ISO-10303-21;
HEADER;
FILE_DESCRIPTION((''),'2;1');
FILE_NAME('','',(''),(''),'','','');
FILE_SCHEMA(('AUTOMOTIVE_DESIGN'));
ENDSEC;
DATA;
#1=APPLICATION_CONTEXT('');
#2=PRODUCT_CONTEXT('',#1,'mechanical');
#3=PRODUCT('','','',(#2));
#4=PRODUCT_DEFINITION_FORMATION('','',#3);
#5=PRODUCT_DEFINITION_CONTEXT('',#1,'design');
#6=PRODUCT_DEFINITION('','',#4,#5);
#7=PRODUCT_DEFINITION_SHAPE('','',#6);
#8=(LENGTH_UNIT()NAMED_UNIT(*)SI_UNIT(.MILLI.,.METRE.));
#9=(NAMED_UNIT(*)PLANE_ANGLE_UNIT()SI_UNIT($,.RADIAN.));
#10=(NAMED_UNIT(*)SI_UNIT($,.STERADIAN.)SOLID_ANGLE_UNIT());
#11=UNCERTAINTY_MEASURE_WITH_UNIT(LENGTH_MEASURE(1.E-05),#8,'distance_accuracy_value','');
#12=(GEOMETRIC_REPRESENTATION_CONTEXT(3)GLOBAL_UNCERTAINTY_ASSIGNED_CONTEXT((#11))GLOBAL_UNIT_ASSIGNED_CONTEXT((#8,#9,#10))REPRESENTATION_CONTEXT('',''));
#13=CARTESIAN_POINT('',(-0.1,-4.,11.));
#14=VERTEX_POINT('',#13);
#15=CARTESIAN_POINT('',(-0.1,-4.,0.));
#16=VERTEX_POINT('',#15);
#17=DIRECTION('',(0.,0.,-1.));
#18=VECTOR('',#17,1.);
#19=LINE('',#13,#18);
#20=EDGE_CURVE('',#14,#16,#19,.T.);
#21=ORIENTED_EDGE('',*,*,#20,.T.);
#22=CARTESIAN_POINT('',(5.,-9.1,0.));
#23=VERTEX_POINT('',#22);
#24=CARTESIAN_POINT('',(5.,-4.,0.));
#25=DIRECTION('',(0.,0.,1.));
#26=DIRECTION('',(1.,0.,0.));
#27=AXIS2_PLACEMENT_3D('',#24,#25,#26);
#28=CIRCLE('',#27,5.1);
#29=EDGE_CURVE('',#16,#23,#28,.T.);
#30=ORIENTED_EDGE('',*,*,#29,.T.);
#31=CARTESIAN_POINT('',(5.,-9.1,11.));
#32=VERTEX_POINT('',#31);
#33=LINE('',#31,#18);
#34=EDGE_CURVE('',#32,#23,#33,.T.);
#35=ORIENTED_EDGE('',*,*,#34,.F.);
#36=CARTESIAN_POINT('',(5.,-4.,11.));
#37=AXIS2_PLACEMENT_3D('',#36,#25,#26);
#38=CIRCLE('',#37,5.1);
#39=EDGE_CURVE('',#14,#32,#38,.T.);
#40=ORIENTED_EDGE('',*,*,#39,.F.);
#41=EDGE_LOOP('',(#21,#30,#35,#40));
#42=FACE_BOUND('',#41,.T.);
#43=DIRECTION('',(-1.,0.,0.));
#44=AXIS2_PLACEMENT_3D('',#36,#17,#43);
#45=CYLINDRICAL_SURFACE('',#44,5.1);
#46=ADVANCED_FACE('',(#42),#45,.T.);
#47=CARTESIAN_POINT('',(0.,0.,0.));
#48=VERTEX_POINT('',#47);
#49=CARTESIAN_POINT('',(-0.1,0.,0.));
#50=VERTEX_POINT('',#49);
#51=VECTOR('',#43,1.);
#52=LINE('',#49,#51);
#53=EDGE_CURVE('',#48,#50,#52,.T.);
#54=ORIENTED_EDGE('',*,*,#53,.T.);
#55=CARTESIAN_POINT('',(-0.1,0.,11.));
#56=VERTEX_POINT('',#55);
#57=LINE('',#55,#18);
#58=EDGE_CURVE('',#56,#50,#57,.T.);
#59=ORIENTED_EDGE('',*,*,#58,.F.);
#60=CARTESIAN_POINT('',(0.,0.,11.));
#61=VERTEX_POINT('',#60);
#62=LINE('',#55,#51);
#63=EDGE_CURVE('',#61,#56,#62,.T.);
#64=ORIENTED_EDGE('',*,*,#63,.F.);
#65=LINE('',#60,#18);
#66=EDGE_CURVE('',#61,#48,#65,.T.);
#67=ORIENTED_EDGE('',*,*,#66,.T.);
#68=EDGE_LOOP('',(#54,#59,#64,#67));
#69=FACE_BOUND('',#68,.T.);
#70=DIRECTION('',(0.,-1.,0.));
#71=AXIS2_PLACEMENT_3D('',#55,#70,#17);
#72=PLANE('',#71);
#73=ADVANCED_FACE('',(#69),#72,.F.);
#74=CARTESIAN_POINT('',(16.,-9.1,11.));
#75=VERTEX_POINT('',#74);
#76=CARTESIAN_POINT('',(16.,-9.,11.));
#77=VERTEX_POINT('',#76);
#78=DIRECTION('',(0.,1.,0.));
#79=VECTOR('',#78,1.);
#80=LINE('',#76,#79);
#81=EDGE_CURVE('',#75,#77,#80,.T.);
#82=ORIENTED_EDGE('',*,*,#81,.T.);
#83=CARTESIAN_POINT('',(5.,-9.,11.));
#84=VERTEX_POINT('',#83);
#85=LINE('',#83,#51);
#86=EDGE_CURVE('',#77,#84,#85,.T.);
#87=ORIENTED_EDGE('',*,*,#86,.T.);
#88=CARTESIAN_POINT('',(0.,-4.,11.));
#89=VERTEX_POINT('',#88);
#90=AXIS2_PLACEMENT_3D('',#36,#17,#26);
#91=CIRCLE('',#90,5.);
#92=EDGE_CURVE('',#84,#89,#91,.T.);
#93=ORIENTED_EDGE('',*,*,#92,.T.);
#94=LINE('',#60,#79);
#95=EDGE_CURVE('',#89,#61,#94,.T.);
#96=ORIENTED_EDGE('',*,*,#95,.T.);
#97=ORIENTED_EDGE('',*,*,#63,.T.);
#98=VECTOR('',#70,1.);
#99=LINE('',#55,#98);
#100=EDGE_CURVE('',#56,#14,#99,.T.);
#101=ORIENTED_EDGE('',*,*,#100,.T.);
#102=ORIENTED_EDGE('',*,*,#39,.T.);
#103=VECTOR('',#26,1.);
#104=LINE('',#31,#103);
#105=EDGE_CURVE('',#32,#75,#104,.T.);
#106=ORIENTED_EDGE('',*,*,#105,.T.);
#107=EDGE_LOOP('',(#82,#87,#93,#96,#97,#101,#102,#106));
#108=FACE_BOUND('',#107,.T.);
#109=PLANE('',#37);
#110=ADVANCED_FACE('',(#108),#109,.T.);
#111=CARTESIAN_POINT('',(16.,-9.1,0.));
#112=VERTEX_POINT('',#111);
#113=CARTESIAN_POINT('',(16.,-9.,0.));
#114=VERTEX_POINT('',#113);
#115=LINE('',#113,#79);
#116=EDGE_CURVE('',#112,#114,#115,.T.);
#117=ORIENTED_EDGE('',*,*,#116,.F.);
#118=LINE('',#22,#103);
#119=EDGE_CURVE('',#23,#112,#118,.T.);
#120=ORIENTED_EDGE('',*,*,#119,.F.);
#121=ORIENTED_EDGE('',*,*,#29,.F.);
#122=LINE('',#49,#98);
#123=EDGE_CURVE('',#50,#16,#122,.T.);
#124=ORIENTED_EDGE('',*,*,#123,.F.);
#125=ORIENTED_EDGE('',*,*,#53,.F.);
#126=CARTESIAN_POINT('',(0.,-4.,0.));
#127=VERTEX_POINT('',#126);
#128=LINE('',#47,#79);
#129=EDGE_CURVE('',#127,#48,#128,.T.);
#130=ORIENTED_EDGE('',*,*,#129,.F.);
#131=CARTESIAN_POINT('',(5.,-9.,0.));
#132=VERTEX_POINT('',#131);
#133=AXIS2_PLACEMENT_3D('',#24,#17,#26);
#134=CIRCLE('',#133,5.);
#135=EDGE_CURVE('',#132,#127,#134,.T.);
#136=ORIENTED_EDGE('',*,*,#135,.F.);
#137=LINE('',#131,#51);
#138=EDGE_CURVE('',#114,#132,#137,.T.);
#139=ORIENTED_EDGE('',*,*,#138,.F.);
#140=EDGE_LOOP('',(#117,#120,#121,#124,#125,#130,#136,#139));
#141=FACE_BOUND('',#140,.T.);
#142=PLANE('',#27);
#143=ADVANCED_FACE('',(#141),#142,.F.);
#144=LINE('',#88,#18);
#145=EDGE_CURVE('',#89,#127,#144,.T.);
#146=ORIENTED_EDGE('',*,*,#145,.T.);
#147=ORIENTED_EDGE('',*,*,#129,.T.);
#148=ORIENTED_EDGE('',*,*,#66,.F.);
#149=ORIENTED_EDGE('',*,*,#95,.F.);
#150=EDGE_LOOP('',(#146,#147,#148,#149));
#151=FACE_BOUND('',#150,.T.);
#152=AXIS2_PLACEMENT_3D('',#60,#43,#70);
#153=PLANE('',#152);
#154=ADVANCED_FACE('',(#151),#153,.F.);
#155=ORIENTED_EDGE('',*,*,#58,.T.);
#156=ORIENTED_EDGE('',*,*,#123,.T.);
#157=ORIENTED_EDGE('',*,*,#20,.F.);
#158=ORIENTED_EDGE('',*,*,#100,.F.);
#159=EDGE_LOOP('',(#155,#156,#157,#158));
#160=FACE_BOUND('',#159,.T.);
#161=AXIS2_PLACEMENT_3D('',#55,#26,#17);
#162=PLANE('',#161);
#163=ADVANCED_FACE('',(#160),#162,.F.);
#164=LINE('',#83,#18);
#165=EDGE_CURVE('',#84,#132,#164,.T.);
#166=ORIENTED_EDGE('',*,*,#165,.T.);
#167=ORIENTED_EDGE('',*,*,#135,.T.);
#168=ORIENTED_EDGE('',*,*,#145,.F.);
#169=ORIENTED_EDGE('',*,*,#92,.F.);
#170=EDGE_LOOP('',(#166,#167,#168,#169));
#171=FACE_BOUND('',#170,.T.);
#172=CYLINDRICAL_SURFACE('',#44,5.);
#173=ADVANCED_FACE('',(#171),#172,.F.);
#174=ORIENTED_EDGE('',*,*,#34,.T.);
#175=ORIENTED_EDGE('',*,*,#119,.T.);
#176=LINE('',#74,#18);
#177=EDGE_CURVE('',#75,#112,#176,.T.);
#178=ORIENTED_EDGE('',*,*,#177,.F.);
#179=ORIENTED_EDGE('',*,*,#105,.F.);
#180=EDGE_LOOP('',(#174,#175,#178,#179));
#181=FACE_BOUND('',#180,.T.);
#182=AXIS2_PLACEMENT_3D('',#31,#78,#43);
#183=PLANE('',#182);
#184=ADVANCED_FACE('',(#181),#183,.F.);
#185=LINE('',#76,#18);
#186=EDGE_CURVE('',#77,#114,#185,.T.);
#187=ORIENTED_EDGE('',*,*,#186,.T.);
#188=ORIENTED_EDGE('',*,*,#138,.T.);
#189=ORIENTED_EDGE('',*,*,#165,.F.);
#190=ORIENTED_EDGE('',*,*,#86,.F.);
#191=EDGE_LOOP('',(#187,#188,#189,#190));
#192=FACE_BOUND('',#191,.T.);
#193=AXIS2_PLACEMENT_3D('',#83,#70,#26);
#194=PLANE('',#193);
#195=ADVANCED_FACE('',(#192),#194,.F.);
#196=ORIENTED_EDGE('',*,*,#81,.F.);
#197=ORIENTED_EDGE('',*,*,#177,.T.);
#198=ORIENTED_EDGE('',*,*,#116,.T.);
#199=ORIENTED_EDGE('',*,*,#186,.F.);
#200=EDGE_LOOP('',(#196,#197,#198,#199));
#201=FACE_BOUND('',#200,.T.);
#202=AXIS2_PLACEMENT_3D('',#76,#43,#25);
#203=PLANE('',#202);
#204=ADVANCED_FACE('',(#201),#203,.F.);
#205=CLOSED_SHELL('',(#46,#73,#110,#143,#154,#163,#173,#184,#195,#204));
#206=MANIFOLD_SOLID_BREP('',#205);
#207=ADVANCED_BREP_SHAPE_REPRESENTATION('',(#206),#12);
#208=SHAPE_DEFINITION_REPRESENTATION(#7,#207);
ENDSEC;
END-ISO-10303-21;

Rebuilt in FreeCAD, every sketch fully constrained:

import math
import FreeCAD as App
import Part
import Sketcher
from FreeCAD import Vector
Q = App.Units.Quantity

doc = App.newDocument("Part")
params = doc.addObject("Spreadsheet::Sheet", "Params")
for row, (alias, value) in enumerate([
    ("sketch1_radius", "5 mm"),
    ("sketch1_radius2", "5.1 mm"),
    ("sketch1_width", "11 mm"),
    ("sketch1_height", "4 mm"),
    ("pad1_length", "11 mm"),
], start=1):
    params.set(f"A{row}", alias)
    params.set(f"B{row}", "=" + value)
    params.setAlias(f"B{row}", alias)

body = doc.addObject("PartDesign::Body", "Body")

# Sketch on XY plane
sketch1 = body.newObject("Sketcher::SketchObject", "Sketch")
sketch1.AttachmentSupport = (doc.getObject("XY_Plane"), [""])
sketch1.MapMode = "FlatFace"
sketch1.addGeometry([
    Part.LineSegment(Vector(0, -4, 0), Vector(0, 0, 0)),  # 0
    Part.LineSegment(Vector(0, 0, 0), Vector(-0.1, 0, 0)),  # 1
    Part.LineSegment(Vector(-0.1, 0, 0), Vector(-0.1, -4, 0)),  # 2
    Part.ArcOfCircle(Part.Circle(Vector(5, -4, 0), Vector(0, 0, 1), 5.1), math.radians(180), math.radians(270)),  # 3
    Part.LineSegment(Vector(5, -9.1, 0), Vector(16, -9.1, 0)),  # 4
    Part.LineSegment(Vector(16, -9.1, 0), Vector(16, -9, 0)),  # 5
    Part.LineSegment(Vector(16, -9, 0), Vector(5, -9, 0)),  # 6
    Part.ArcOfCircle(Part.Circle(Vector(5, -4, 0), Vector(0, 0, 1), 5), math.radians(180), math.radians(270)),  # 7
], False)
sketch1.addConstraint([
    Sketcher.Constraint("Coincident", 0, 2, 1, 1),
    Sketcher.Constraint("Coincident", 1, 2, 2, 1),
    Sketcher.Constraint("Tangent", 2, 2, 3, 1),
    Sketcher.Constraint("Tangent", 3, 2, 4, 1),
    Sketcher.Constraint("Coincident", 4, 2, 5, 1),
    Sketcher.Constraint("Coincident", 5, 2, 6, 1),
    Sketcher.Constraint("Tangent", 6, 2, 7, 2),
    Sketcher.Constraint("Tangent", 7, 1, 0, 1),
    Sketcher.Constraint("Vertical", 0),
    Sketcher.Constraint("Horizontal", 1),
    Sketcher.Constraint("Vertical", 2),
    Sketcher.Constraint("Horizontal", 4),
    Sketcher.Constraint("Vertical", 5),
    Sketcher.Constraint("Horizontal", 6),
    Sketcher.Constraint("Coincident", 0, 2, -1, 1),
    Sketcher.Constraint("Coincident", 7, 3, 3, 3),
    Sketcher.Constraint("Radius", 7, Q("5 mm")),
    Sketcher.Constraint("Radius", 3, Q("5.1 mm")),
    Sketcher.Constraint("DistanceX", 4, 1, 4, 2, Q("11 mm")),
    Sketcher.Constraint("DistanceY", 0, 1, 0, 2, Q("4 mm")),
])
sketch1.setExpression("Constraints[16]", "Params.sketch1_radius")
sketch1.setExpression("Constraints[17]", "Params.sketch1_radius2")
sketch1.setExpression("Constraints[18]", "Params.sketch1_width")
sketch1.setExpression("Constraints[19]", "Params.sketch1_height")
pad1 = body.newObject("PartDesign::Pad", "Pad")
pad1.Profile = sketch1
pad1.setExpression("Length", "Params.pad1_length")

doc.recompute()
